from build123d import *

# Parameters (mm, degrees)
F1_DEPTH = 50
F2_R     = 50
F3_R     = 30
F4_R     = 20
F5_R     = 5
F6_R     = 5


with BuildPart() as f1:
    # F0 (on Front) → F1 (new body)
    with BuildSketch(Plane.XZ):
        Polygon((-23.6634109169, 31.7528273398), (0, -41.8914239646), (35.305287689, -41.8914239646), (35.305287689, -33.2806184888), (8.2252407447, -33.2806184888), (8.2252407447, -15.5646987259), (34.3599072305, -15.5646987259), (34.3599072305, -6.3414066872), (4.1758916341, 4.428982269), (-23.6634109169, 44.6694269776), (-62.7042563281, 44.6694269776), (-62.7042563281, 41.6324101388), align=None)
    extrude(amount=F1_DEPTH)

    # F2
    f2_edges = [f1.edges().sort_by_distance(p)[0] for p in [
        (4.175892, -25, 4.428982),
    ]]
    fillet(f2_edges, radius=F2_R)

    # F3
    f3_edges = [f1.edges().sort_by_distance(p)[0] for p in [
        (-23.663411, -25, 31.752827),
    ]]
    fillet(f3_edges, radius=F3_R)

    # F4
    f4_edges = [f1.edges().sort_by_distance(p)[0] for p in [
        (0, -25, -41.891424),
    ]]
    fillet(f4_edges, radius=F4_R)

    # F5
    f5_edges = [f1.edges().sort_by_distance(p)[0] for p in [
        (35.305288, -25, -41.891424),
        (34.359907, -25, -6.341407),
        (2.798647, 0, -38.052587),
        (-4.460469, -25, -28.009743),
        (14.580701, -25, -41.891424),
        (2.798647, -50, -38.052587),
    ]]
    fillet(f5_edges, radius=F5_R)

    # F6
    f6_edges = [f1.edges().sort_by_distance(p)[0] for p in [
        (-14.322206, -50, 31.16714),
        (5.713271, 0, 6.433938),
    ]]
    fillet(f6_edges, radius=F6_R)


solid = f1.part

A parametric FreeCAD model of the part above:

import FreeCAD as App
import Part
import Sketcher
Q = App.Units.Quantity


def edges_at(feature, points):
    """Names of the edges that pass closest to the given points."""
    edges = feature.Shape.Edges
    near = lambda p: min(range(len(edges)), key=lambda i: edges[i].distToShape(Part.Vertex(*p))[0])
    return sorted({f"Edge{near(p) + 1}" for p in points})

doc = App.newDocument("Part")
body = doc.addObject("PartDesign::Body", "Body")

# Sketch on XZ plane
sketch1 = body.newObject("Sketcher::SketchObject", "Sketch")
sketch1.AttachmentSupport = (doc.getObject("XZ_Plane"), [""])
sketch1.MapMode = "FlatFace"
sketch1.addGeometry([
    Part.LineSegment(App.Vector(-23.7, 31.8, 0), App.Vector(0, -41.9, 0)),  # 0
    Part.LineSegment(App.Vector(0, -41.9, 0), App.Vector(35.3, -41.9, 0)),  # 1
    Part.LineSegment(App.Vector(35.3, -41.9, 0), App.Vector(35.3, -33.3, 0)),  # 2
    Part.LineSegment(App.Vector(35.3, -33.3, 0), App.Vector(8.2, -33.3, 0)),  # 3
    Part.LineSegment(App.Vector(8.2, -33.3, 0), App.Vector(8.2, -15.6, 0)),  # 4
    Part.LineSegment(App.Vector(8.2, -15.6, 0), App.Vector(34.4, -15.6, 0)),  # 5
    Part.LineSegment(App.Vector(34.4, -15.6, 0), App.Vector(34.4, -6.3, 0)),  # 6
    Part.LineSegment(App.Vector(34.4, -6.3, 0), App.Vector(4.2, 4.4, 0)),  # 7
    Part.LineSegment(App.Vector(4.2, 4.4, 0), App.Vector(-23.7, 44.7, 0)),  # 8
    Part.LineSegment(App.Vector(-23.7, 44.7, 0), App.Vector(-62.7, 44.7, 0)),  # 9
    Part.LineSegment(App.Vector(-62.7, 44.7, 0), App.Vector(-62.7, 41.6, 0)),  # 10
    Part.LineSegment(App.Vector(-62.7, 41.6, 0), App.Vector(-23.7, 31.8, 0)),  # 11
], False)
sketch1.addConstraint([
    Sketcher.Constraint("Coincident", 0, 2, 1, 1),
    Sketcher.Constraint("Coincident", 1, 2, 2, 1),
    Sketcher.Constraint("Coincident", 2, 2, 3, 1),
    Sketcher.Constraint("Coincident", 3, 2, 4, 1),
    Sketcher.Constraint("Coincident", 4, 2, 5, 1),
    Sketcher.Constraint("Coincident", 5, 2, 6, 1),
    Sketcher.Constraint("Coincident", 6, 2, 7, 1),
    Sketcher.Constraint("Coincident", 7, 2, 8, 1),
    Sketcher.Constraint("Coincident", 8, 2, 9, 1),
    Sketcher.Constraint("Coincident", 9, 2, 10, 1),
    Sketcher.Constraint("Coincident", 10, 2, 11, 1),
    Sketcher.Constraint("Coincident", 11, 2, 0, 1),
    Sketcher.Constraint("Horizontal", 1),
    Sketcher.Constraint("Vertical", 2),
    Sketcher.Constraint("Horizontal", 3),
    Sketcher.Constraint("Vertical", 4),
    Sketcher.Constraint("Horizontal", 5),
    Sketcher.Constraint("Vertical", 6),
    Sketcher.Constraint("Horizontal", 9),
    Sketcher.Constraint("Vertical", 10),
    Sketcher.Constraint("PointOnObject", 0, 2, -2),
    Sketcher.Constraint("Vertical", 8, 2, 11, 2),
    Sketcher.Constraint("Distance", 11, Q("40.271501 mm")),
    Sketcher.Constraint("DistanceY", 4, 1, 4, 2, Q("17.71592 mm")),
    Sketcher.Constraint("DistanceY", 4, 2, -1, 1, Q("15.564699 mm")),
    Sketcher.Constraint("DistanceY", 3, 2, 7, 2, Q("37.709601 mm")),
    Sketcher.Constraint("DistanceY", 11, 2, 8, 2, Q("12.9166 mm")),
    Sketcher.Constraint("Distance", 0, Q("77.352652 mm")),
    Sketcher.Constraint("Distance", 8, Q("48.931791 mm")),
    Sketcher.Constraint("DistanceX", 1, 1, 1, 2, Q("35.305288 mm")),
    Sketcher.Constraint("DistanceX", 3, 2, 3, 1, Q("27.080047 mm")),
    Sketcher.Constraint("DistanceX", 5, 1, 5, 2, Q("26.134666 mm")),
    Sketcher.Constraint("DistanceX", 9, 2, 9, 1, Q("39.040845 mm")),
    Sketcher.Constraint("DistanceY", 2, 1, 2, 2, Q("8.610805 mm")),
    Sketcher.Constraint("DistanceY", 6, 1, 6, 2, Q("9.223292 mm")),
    Sketcher.Constraint("DistanceX", -1, 1, 7, 2, Q("4.175892 mm")),
])
pad1 = body.newObject("PartDesign::Pad", "Pad")
pad1.Profile = sketch1
pad1.Length = 50
doc.recompute()

fillet = body.newObject("PartDesign::Fillet", "Fillet")
fillet.Base = (pad1, edges_at(pad1, [(4.176, -25, 4.429)]))
fillet.Radius = 50
doc.recompute()

fillet2 = body.newObject("PartDesign::Fillet", "Fillet001")
fillet2.Base = (fillet, edges_at(fillet, [(-23.663, -25, 31.753)]))
fillet2.Radius = 30
doc.recompute()

fillet3 = body.newObject("PartDesign::Fillet", "Fillet002")
fillet3.Base = (fillet2, edges_at(fillet2, [(0, -25, -41.891)]))
fillet3.Radius = 20
doc.recompute()

fillet4 = body.newObject("PartDesign::Fillet", "Fillet003")
fillet4.Base = (fillet3, edges_at(fillet3, [
    (35.305, -25, -41.891),
    (34.36, -25, -6.341),
    (2.799, 0, -38.053),
    (-4.46, -25, -28.01),
    (14.581, -25, -41.891),
    (2.799, -50, -38.053),
]))
fillet4.Radius = 5
doc.recompute()

fillet5 = body.newObject("PartDesign::Fillet", "Fillet004")
fillet5.Base = (fillet4, edges_at(fillet4, [(-14.322, -50, 31.167), (5.713, 0, 6.434)]))
fillet5.Radius = 5

doc.recompute()
